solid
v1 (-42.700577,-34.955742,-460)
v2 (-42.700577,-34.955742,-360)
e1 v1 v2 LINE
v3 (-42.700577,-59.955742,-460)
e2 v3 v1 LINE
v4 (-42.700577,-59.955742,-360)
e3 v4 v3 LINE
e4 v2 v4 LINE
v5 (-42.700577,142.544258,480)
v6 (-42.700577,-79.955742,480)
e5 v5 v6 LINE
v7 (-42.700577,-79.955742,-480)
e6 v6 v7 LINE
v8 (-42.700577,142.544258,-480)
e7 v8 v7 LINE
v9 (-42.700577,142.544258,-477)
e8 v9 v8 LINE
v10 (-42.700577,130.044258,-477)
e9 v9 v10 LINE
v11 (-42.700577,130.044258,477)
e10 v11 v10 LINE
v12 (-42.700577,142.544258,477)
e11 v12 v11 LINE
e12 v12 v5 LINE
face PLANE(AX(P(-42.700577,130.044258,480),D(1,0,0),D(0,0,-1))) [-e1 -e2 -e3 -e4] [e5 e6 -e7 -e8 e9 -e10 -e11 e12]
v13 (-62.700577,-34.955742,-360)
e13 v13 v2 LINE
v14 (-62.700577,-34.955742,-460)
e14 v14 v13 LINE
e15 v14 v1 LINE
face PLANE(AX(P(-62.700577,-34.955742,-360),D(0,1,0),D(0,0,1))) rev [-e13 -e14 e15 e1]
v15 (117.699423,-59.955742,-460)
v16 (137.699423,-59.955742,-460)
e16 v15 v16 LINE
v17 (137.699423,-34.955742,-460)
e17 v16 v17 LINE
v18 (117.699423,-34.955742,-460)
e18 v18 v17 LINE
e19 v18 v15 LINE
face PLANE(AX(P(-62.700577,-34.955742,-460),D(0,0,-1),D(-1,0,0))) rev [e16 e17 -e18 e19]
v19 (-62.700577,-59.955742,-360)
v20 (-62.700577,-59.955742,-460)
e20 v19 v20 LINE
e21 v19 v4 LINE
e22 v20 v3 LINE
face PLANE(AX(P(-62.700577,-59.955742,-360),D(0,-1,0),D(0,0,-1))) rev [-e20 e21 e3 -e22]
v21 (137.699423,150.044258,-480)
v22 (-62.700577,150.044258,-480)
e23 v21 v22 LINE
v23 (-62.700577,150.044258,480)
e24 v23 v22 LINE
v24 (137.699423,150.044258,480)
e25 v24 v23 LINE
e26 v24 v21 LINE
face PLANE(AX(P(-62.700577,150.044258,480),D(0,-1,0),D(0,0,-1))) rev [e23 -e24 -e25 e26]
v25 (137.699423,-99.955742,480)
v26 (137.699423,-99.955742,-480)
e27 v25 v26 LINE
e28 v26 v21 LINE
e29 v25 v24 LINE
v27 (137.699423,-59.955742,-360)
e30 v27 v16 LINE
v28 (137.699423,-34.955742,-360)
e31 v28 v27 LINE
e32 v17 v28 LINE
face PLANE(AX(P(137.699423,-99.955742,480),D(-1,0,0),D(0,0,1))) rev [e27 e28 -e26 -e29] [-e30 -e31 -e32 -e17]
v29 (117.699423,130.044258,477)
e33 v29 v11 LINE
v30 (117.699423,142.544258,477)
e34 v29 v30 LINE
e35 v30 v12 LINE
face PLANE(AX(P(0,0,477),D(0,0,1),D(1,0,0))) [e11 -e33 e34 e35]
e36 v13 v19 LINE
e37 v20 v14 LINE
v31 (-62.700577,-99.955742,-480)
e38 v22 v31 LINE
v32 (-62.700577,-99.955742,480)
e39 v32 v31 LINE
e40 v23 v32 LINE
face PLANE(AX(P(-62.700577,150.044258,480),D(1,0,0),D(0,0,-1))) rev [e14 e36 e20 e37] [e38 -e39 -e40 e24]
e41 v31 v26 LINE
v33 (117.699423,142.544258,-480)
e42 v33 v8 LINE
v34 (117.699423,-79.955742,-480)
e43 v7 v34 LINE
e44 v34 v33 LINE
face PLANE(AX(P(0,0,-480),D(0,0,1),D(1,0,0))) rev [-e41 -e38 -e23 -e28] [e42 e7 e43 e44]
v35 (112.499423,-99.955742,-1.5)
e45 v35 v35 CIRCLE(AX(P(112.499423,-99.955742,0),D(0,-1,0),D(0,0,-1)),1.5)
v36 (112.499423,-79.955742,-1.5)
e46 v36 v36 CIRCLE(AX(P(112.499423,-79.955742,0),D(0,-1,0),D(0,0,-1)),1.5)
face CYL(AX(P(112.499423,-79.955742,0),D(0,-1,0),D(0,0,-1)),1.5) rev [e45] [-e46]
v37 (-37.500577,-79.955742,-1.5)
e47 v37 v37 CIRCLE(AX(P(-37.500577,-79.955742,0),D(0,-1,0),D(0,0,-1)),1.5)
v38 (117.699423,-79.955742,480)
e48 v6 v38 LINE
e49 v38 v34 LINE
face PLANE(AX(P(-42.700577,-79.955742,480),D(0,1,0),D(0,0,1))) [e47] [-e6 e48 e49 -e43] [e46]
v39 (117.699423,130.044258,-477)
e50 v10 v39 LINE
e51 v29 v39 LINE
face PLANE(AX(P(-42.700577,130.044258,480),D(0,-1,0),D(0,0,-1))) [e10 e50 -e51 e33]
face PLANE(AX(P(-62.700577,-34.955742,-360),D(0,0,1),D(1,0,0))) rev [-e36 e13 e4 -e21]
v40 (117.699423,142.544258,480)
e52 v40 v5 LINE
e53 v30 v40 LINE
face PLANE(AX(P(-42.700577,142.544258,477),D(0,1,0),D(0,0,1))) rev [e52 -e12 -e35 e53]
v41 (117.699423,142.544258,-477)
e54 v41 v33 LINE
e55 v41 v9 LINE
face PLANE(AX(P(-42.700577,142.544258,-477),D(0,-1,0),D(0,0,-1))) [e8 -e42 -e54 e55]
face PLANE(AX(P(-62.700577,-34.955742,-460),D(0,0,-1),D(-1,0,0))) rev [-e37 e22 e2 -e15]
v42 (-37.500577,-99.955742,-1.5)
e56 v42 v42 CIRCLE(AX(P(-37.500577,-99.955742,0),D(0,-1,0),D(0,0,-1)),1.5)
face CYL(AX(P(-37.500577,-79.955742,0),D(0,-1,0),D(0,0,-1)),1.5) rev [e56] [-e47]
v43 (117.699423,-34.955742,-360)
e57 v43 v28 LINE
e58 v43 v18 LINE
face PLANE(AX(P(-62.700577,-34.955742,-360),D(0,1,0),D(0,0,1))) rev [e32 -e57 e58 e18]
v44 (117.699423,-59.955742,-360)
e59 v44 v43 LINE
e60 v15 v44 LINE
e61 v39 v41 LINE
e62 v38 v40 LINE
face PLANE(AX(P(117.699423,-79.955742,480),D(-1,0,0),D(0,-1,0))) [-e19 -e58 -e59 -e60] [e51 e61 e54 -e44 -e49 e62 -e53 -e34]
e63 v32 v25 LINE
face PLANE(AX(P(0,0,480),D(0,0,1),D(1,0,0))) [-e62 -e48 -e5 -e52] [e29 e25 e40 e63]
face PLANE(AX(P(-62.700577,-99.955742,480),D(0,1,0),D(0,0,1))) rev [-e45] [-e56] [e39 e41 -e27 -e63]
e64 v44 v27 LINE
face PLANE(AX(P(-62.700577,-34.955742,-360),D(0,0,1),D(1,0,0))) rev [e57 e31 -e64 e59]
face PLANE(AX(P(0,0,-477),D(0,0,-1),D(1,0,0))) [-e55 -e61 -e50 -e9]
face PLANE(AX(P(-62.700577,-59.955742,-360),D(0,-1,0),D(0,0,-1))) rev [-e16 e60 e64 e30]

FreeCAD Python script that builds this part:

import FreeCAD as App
import Part
import Sketcher

V = App.Vector

doc = App.newDocument("Part")
params = doc.addObject("Spreadsheet::Sheet", "Params")
for row, (alias, value) in enumerate([
    ("sketch1_height", "250 mm"),
    ("sketch1_height2", "210 mm"),
    ("sketch1_width", "200.4 mm"),
    ("sketch1_width2", "160.4 mm"),
    ("pad1_length", "960 mm"),
    ("sketch2_height", "25 mm"),
    ("sketch2_width", "160.4 mm"),
    ("pocket1_length", "3 mm"),
    ("sketch3_width", "25 mm"),
    ("sketch3_height", "100 mm"),
    ("sketch4_diameter", "3 mm"),
    ("pocket3_length", "20 mm"),
], start=1):
    params.set(f"A{row}", alias)
    params.set(f"B{row}", "=" + value)
    params.setAlias(f"B{row}", alias)

body = doc.addObject("PartDesign::Body", "Body")

sketch1 = body.newObject("Sketcher::SketchObject", "Sketch")
sketch1.AttachmentSupport = (doc.getObject("XY_Plane"), [""])
sketch1.MapMode = "FlatFace"
sketch1.addGeometry(Part.LineSegment(V(-63, 150, 0), V(-63, -100, 0)), False)
sketch1.addGeometry(Part.LineSegment(V(-63, -100, 0), V(138, -100, 0)), False)
sketch1.addGeometry(Part.LineSegment(V(138, -100, 0), V(138, 150, 0)), False)
sketch1.addGeometry(Part.LineSegment(V(138, 150, 0), V(-63, 150, 0)), False)
sketch1.addGeometry(Part.LineSegment(V(118, -80, 0), V(-43, -80, 0)), False)
sketch1.addGeometry(Part.LineSegment(V(-43, -80, 0), V(-43, 130, 0)), False)
sketch1.addGeometry(Part.LineSegment(V(-43, 130, 0), V(118, 130, 0)), False)
sketch1.addGeometry(Part.LineSegment(V(118, 130, 0), V(118, -80, 0)), False)
sketch1.addConstraint(Sketcher.Constraint("Coincident", 0, 2, 1, 1))
sketch1.addConstraint(Sketcher.Constraint("Coincident", 1, 2, 2, 1))
sketch1.addConstraint(Sketcher.Constraint("Coincident", 2, 2, 3, 1))
sketch1.addConstraint(Sketcher.Constraint("Coincident", 3, 2, 0, 1))
sketch1.addConstraint(Sketcher.Constraint("Coincident", 4, 2, 5, 1))
sketch1.addConstraint(Sketcher.Constraint("Coincident", 5, 2, 6, 1))
sketch1.addConstraint(Sketcher.Constraint("Coincident", 6, 2, 7, 1))
sketch1.addConstraint(Sketcher.Constraint("Coincident", 7, 2, 4, 1))
sketch1.addConstraint(Sketcher.Constraint("Vertical", 0))
sketch1.addConstraint(Sketcher.Constraint("Horizontal", 1))
sketch1.addConstraint(Sketcher.Constraint("Vertical", 2))
sketch1.addConstraint(Sketcher.Constraint("Horizontal", 3))
sketch1.addConstraint(Sketcher.Constraint("Horizontal", 4))
sketch1.addConstraint(Sketcher.Constraint("Vertical", 5))
sketch1.addConstraint(Sketcher.Constraint("Horizontal", 6))
sketch1.addConstraint(Sketcher.Constraint("Vertical", 7))
sketch1.addConstraint(Sketcher.Constraint("DistanceY", 0, 2, 0, 1, 250.0))
sketch1.addConstraint(Sketcher.Constraint("DistanceY", 5, 1, 5, 2, 210.0))
sketch1.addConstraint(Sketcher.Constraint("DistanceX", 1, 1, 1, 2, 200.4))
sketch1.addConstraint(Sketcher.Constraint("DistanceX", 4, 2, 4, 1, 160.4))
sketch1.addConstraint(Sketcher.Constraint("DistanceX", 0, 2, 4, 2, 20.0))
sketch1.addConstraint(Sketcher.Constraint("DistanceY", 0, 2, 4, 2, 20.0))
sketch1.addConstraint(Sketcher.Constraint("DistanceX", 0, 2, -1, 1, 62.700577))
sketch1.addConstraint(Sketcher.Constraint("DistanceY", 0, 2, -1, 1, 99.955742))
sketch1.setExpression("Constraints[16]", "Params.sketch1_height")
sketch1.setExpression("Constraints[17]", "Params.sketch1_height2")
sketch1.setExpression("Constraints[18]", "Params.sketch1_width")
sketch1.setExpression("Constraints[19]", "Params.sketch1_width2")
pad1 = body.newObject("PartDesign::Pad", "Pad")
pad1.Profile = sketch1
pad1.setExpression("Length", "Params.pad1_length")
pad1.Midplane = True

sketch2 = body.newObject("Sketcher::SketchObject", "Sketch001")
sketch2.AttachmentSupport = (doc.getObject("XY_Plane"), [""])
sketch2.MapMode = "FlatFace"
sketch2.AttachmentOffset = App.Placement(V(0, 0, 480), App.Rotation())
sketch2.addGeometry(Part.LineSegment(V(-43, 143, 0), V(-43, 118, 0)), False)
sketch2.addGeometry(Part.LineSegment(V(-43, 118, 0), V(118, 118, 0)), False)
sketch2.addGeometry(Part.LineSegment(V(118, 118, 0), V(118, 143, 0)), False)
sketch2.addGeometry(Part.LineSegment(V(118, 143, 0), V(-43, 143, 0)), False)
sketch2.addConstraint(Sketcher.Constraint("Coincident", 0, 2, 1, 1))
sketch2.addConstraint(Sketcher.Constraint("Coincident", 1, 2, 2, 1))
sketch2.addConstraint(Sketcher.Constraint("Coincident", 2, 2, 3, 1))
sketch2.addConstraint(Sketcher.Constraint("Coincident", 3, 2, 0, 1))
sketch2.addConstraint(Sketcher.Constraint("Vertical", 0))
sketch2.addConstraint(Sketcher.Constraint("Horizontal", 1))
sketch2.addConstraint(Sketcher.Constraint("Vertical", 2))
sketch2.addConstraint(Sketcher.Constraint("Horizontal", 3))
sketch2.addConstraint(Sketcher.Constraint("DistanceY", 0, 2, 0, 1, 25.0))
sketch2.addConstraint(Sketcher.Constraint("DistanceX", 1, 1, 1, 2, 160.4))
sketch2.addConstraint(Sketcher.Constraint("DistanceX", 0, 2, -1, 1, 42.700577))
sketch2.addConstraint(Sketcher.Constraint("DistanceY", -1, 1, 0, 2, 117.544258))
sketch2.setExpression("Constraints[8]", "Params.sketch2_height")
sketch2.setExpression("Constraints[9]", "Params.sketch2_width")
pocket1 = body.newObject("PartDesign::Pocket", "Pocket")
pocket1.Profile = sketch2
pocket1.setExpression("Length", "Params.pocket1_length")
doc.recompute()

mirrored = body.newObject("PartDesign::Mirrored", "Mirrored")
mirrored.Originals = [pocket1]
mirrored.MirrorPlane = (doc.getObject("XY_Plane"), [""])
body.Tip = mirrored

sketch3 = body.newObject("Sketcher::SketchObject", "Sketch002")
sketch3.AttachmentSupport = (doc.getObject("YZ_Plane"), [""])
sketch3.MapMode = "FlatFace"
sketch3.AttachmentOffset = App.Placement(V(0, 0, -42.700577), App.Rotation())
sketch3.addGeometry(Part.LineSegment(V(-35, -360, 0), V(-60, -360, 0)), False)
sketch3.addGeometry(Part.LineSegment(V(-60, -360, 0), V(-60, -460, 0)), False)
sketch3.addGeometry(Part.LineSegment(V(-60, -460, 0), V(-35, -460, 0)), False)
sketch3.addGeometry(Part.LineSegment(V(-35, -460, 0), V(-35, -360, 0)), False)
sketch3.addConstraint(Sketcher.Constraint("Coincident", 0, 2, 1, 1))
sketch3.addConstraint(Sketcher.Constraint("Coincident", 1, 2, 2, 1))
sketch3.addConstraint(Sketcher.Constraint("Coincident", 2, 2, 3, 1))
sketch3.addConstraint(Sketcher.Constraint("Coincident", 3, 2, 0, 1))
sketch3.addConstraint(Sketcher.Constraint("Horizontal", 0))
sketch3.addConstraint(Sketcher.Constraint("Vertical", 1))
sketch3.addConstraint(Sketcher.Constraint("Horizontal", 2))
sketch3.addConstraint(Sketcher.Constraint("Vertical", 3))
sketch3.addConstraint(Sketcher.Constraint("DistanceX", 0, 2, 0, 1, 25.0))
sketch3.addConstraint(Sketcher.Constraint("DistanceY", 1, 2, 1, 1, 100.0))
sketch3.addConstraint(Sketcher.Constraint("DistanceY", 0, 2, -1, 1, 360.0))
sketch3.addConstraint(Sketcher.Constraint("DistanceX", 0, 2, -1, 1, 59.955742))
sketch3.setExpression("Constraints[8]", "Params.sketch3_width")
sketch3.setExpression("Constraints[9]", "Params.sketch3_height")
pocket2 = body.newObject("PartDesign::Pocket", "Pocket001")
pocket2.Profile = sketch3
pocket2.Type = "ThroughAll"
pocket2.Midplane = True

sketch4 = body.newObject("Sketcher::SketchObject", "Sketch003")
sketch4.AttachmentSupport = (doc.getObject("XZ_Plane"), [""])
sketch4.MapMode = "FlatFace"
sketch4.AttachmentOffset = App.Placement(V(0, 0, 99.955742), App.Rotation())
sketch4.addGeometry(Part.Circle(V(112.5, 0, 0), V(0, 0, 1), 1.5), False)
sketch4.addGeometry(Part.Circle(V(-37.5, 0, 0), V(0, 0, 1), 1.5), False)
sketch4.addConstraint(Sketcher.Constraint("Equal", 0, 1))
sketch4.addConstraint(Sketcher.Constraint("PointOnObject", 0, 3, -1))
sketch4.addConstraint(Sketcher.Constraint("PointOnObject", 1, 3, -1))
sketch4.addConstraint(Sketcher.Constraint("Diameter", 0, 3.0))
sketch4.addConstraint(Sketcher.Constraint("DistanceX", 1, 3, 0, 3, 150.0))
sketch4.addConstraint(Sketcher.Constraint("DistanceX", -1, 1, 0, 3, 112.499423))
sketch4.setExpression("Constraints[3]", "Params.sketch4_diameter")
pocket3 = body.newObject("PartDesign::Pocket", "Pocket002")
pocket3.Profile = sketch4
pocket3.setExpression("Length", "Params.pocket3_length")

doc.recompute()
